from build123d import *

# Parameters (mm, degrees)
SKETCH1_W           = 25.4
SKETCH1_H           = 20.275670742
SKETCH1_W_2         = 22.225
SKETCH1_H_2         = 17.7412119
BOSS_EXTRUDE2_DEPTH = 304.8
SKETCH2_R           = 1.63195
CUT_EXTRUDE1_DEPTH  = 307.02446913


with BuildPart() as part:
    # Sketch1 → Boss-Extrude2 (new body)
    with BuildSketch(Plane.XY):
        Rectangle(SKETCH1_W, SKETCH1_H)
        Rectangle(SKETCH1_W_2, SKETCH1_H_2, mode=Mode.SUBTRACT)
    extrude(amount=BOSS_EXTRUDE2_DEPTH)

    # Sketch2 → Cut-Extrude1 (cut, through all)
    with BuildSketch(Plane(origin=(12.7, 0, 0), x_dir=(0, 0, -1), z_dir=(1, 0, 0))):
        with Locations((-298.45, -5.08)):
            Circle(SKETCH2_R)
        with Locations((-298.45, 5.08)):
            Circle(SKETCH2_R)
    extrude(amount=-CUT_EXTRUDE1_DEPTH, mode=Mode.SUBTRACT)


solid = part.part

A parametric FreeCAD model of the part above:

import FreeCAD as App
import Part
import Sketcher

V = App.Vector
Q = App.Units.Quantity


def add_polygon(sketch, points):
    """Adds a closed chain of lines whose ends are joined by coincident constraints."""
    first, n = sketch.GeometryCount, len(points)
    for a, b in zip(points, points[1:] + points[:1]):
        sketch.addGeometry(Part.LineSegment(App.Vector(*a, 0), App.Vector(*b, 0)), False)
    for i in range(n):
        sketch.addConstraint(Sketcher.Constraint("Coincident", first + i, 2, first + (i + 1) % n, 1))

doc = App.newDocument("Part")
body = doc.addObject("PartDesign::Body", "Body")

# Sketch on XY plane
sketch1 = doc.addObject("Sketcher::SketchObject", "Sketch")
body.addObject(sketch1)
sketch1.AttachmentSupport = (doc.XY_Plane, [""])
sketch1.MapMode = "FlatFace"
add_polygon(sketch1, [(-13, 10), (-13, -10), (13, -10), (13, 10)])  # lines 0-3
add_polygon(sketch1, [(11, -9), (-11, -9), (-11, 9), (11, 9)])  # lines 4-7
sketch1.addConstraint(Sketcher.Constraint("Vertical", 0))
sketch1.addConstraint(Sketcher.Constraint("Horizontal", 1))
sketch1.addConstraint(Sketcher.Constraint("Vertical", 2))
sketch1.addConstraint(Sketcher.Constraint("Horizontal", 3))
sketch1.addConstraint(Sketcher.Constraint("Horizontal", 4))
sketch1.addConstraint(Sketcher.Constraint("Vertical", 5))
sketch1.addConstraint(Sketcher.Constraint("Horizontal", 6))
sketch1.addConstraint(Sketcher.Constraint("Vertical", 7))
sketch1.addConstraint(Sketcher.Constraint("Symmetric", 0, 2, 2, 2, -1, 1))
sketch1.addConstraint(Sketcher.Constraint("Symmetric", 4, 2, 6, 2, -1, 1))
sketch1.addConstraint(Sketcher.Constraint("DistanceX", 1, 1, 1, 2, Q("1 in")))
sketch1.addConstraint(Sketcher.Constraint("DistanceX", 4, 2, 4, 1, Q("0.875 in")))
sketch1.addConstraint(Sketcher.Constraint("DistanceY", 0, 2, 0, 1, Q("20.275671 mm")))
sketch1.addConstraint(Sketcher.Constraint("DistanceY", 5, 1, 5, 2, Q("17.741212 mm")))
pad1 = doc.addObject("PartDesign::Pad", "Pad")
body.addObject(pad1)
pad1.Profile = sketch1
pad1.Length = Q("12 in")

# Sketch on YZ plane
sketch2 = doc.addObject("Sketcher::SketchObject", "Sketch001")
body.addObject(sketch2)
sketch2.AttachmentSupport = (doc.YZ_Plane, [""])
sketch2.MapMode = "FlatFace"
sketch2.AttachmentOffset = App.Placement(V(0, 0, 0.5 * 25.4), App.Rotation())
sketch2.addGeometry(Part.Circle(V(-5.1, 298.4, 0), V(0, 0, 1), 1.6), False)
sketch2.addGeometry(Part.Circle(V(5.1, 298.4, 0), V(0, 0, 1), 1.6), False)
sketch2.addConstraint(Sketcher.Constraint("Equal", 0, 1))
sketch2.addConstraint(Sketcher.Constraint("Symmetric", 0, 3, 1, 3, -2))
sketch2.addConstraint(Sketcher.Constraint("Diameter", 0, Q("0.1285 in")))
sketch2.addConstraint(Sketcher.Constraint("DistanceX", 0, 3, -1, 1, Q("0.2 in")))
sketch2.addConstraint(Sketcher.Constraint("DistanceY", -1, 1, 0, 3, Q("11.75 in")))
pocket1 = doc.addObject("PartDesign::Pocket", "Pocket")
body.addObject(pocket1)
pocket1.Profile = sketch2
pocket1.Type = "ThroughAll"

doc.recompute()
